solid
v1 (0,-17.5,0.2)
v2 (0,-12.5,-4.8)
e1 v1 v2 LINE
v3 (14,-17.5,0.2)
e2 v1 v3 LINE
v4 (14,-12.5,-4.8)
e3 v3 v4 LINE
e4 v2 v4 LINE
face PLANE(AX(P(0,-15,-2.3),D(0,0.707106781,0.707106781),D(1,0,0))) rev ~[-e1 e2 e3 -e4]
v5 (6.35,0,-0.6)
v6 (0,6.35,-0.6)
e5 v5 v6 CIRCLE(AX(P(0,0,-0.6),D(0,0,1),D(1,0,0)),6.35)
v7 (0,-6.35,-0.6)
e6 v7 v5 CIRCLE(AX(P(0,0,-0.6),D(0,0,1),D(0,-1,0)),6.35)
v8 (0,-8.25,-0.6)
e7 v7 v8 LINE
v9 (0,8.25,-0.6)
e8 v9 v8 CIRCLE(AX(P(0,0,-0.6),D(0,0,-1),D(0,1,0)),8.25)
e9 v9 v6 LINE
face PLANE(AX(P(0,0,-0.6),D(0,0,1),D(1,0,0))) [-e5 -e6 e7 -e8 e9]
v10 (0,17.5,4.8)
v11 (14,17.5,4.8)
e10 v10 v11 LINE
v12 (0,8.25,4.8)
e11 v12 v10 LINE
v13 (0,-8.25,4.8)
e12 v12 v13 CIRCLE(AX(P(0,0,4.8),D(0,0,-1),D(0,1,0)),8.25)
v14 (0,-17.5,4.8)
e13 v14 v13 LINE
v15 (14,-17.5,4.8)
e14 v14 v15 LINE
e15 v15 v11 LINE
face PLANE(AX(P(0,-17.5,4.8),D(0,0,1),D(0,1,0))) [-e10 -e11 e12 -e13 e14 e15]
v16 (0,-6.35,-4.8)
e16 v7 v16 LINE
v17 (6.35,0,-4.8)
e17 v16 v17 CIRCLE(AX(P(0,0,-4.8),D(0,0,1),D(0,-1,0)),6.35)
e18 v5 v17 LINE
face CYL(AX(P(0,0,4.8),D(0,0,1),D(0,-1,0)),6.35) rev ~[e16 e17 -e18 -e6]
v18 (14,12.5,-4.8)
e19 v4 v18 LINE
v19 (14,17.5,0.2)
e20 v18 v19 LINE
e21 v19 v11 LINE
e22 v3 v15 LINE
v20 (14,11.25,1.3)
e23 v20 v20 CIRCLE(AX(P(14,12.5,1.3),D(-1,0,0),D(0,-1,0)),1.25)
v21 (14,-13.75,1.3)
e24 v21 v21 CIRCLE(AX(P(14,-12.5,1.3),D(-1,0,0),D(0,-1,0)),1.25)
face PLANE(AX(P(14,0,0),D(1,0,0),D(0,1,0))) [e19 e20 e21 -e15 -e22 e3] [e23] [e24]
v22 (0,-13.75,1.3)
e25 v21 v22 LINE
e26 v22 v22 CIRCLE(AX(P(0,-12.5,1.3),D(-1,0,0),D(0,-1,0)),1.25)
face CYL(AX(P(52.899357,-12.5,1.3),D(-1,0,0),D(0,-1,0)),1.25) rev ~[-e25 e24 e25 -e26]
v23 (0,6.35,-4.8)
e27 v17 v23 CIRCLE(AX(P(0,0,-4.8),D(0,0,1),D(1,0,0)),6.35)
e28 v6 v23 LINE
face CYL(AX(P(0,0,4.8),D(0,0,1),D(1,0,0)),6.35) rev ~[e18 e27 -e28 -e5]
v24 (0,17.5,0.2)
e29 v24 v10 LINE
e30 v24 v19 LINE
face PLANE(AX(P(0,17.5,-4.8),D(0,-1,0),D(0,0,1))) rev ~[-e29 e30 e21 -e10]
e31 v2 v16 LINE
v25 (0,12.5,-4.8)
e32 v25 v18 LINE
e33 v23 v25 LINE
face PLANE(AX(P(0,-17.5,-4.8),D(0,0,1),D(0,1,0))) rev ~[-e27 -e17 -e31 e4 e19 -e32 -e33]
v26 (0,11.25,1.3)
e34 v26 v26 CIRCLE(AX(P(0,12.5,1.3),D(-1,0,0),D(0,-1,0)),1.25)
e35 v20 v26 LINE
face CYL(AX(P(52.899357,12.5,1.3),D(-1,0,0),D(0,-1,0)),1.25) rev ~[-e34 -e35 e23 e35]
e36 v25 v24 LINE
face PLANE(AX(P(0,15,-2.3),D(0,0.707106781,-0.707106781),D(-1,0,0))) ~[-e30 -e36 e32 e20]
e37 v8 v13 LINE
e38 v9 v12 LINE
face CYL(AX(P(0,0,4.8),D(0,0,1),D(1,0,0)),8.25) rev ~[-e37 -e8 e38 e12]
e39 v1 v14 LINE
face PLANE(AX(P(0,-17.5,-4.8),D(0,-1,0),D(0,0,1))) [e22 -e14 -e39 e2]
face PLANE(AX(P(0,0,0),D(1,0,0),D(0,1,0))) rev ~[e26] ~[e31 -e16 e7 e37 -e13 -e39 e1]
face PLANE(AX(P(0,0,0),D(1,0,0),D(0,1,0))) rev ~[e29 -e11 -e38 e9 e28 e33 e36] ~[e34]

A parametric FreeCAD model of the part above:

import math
import FreeCAD as App
import Part
import Sketcher

V = App.Vector
Q = App.Units.Quantity


def edges_at(feature, points):
    """Names of the edges that pass closest to the given points."""
    edges = feature.Shape.Edges
    near = lambda p: min(range(len(edges)), key=lambda i: edges[i].distToShape(Part.Vertex(*p))[0])
    return sorted({f"Edge{near(p) + 1}" for p in points})


def add_polygon(sketch, points):
    """Adds a closed chain of lines whose ends are joined by coincident constraints."""
    first, n = sketch.GeometryCount, len(points)
    for a, b in zip(points, points[1:] + points[:1]):
        sketch.addGeometry(Part.LineSegment(App.Vector(*a, 0), App.Vector(*b, 0)), False)
    for i in range(n):
        sketch.addConstraint(Sketcher.Constraint("Coincident", first + i, 2, first + (i + 1) % n, 1))

doc = App.newDocument("Part")
params = doc.addObject("Spreadsheet::Sheet", "Params")
for row, (alias, value) in enumerate([
    ("sketch1_width", "35 mm"),
    ("sketch1_height", "9.6 mm"),
    ("pad1_length", "14 mm"),
    ("sketch2_diameter", "16.5 mm"),
    ("pocket1_length", "5.4 mm"),
    ("sketch3_radius", "6.35 mm"),
    ("pocket2_length", "25 mm"),
    ("chamfer_size", "5 mm"),
    ("sketch4_diameter", "2.5 mm"),
    ("hole_diameter", "2.5 mm"),
], start=1):
    params.set(f"A{row}", alias)
    params.set(f"B{row}", "=" + value)
    params.setAlias(f"B{row}", alias)

body = doc.addObject("PartDesign::Body", "Body")

# Sketch on YZ plane
sketch1 = body.newObject("Sketcher::SketchObject", "Sketch")
sketch1.AttachmentSupport = (doc.getObject("YZ_Plane"), [""])
sketch1.MapMode = "FlatFace"
add_polygon(sketch1, [(-18, 5), (-18, -5), (18, -5), (18, 5)])  # lines 0-3
sketch1.addConstraint(Sketcher.Constraint("Vertical", 0))
sketch1.addConstraint(Sketcher.Constraint("Horizontal", 1))
sketch1.addConstraint(Sketcher.Constraint("Vertical", 2))
sketch1.addConstraint(Sketcher.Constraint("Horizontal", 3))
sketch1.addConstraint(Sketcher.Constraint("Symmetric", 0, 2, 2, 2, -1, 1))
sketch1.addConstraint(Sketcher.Constraint("DistanceX", 1, 1, 1, 2, Q("35 mm")))
sketch1.addConstraint(Sketcher.Constraint("DistanceY", 0, 2, 0, 1, Q("9.6 mm")))
sketch1.setExpression("Constraints[9]", "Params.sketch1_width")
sketch1.setExpression("Constraints[10]", "Params.sketch1_height")
pad1 = body.newObject("PartDesign::Pad", "Pad")
pad1.Profile = sketch1
pad1.setExpression("Length", "Params.pad1_length")

# Sketch on XY plane
sketch2 = body.newObject("Sketcher::SketchObject", "Sketch001")
sketch2.AttachmentSupport = (doc.getObject("XY_Plane"), [""])
sketch2.MapMode = "FlatFace"
sketch2.AttachmentOffset = App.Placement(V(0, 0, 4.8), App.Rotation())
sketch2.addGeometry(Part.Circle(V(0, 0, 0), V(0, 0, 1), 8), False)
sketch2.addConstraint(Sketcher.Constraint("Coincident", 0, 3, -1, 1))
sketch2.addConstraint(Sketcher.Constraint("Diameter", 0, Q("16.5 mm")))
sketch2.setExpression("Constraints[1]", "Params.sketch2_diameter")
pocket1 = body.newObject("PartDesign::Pocket", "Pocket")
pocket1.Profile = sketch2
pocket1.setExpression("Length", "Params.pocket1_length")

# Sketch on XY plane
sketch3 = body.newObject("Sketcher::SketchObject", "Sketch002")
sketch3.AttachmentSupport = (doc.getObject("XY_Plane"), [""])
sketch3.MapMode = "FlatFace"
sketch3.AttachmentOffset = App.Placement(V(0, 0, 4.8), App.Rotation())
sketch3.addGeometry(Part.ArcOfCircle(Part.Circle(V(0, 0, 0), V(0, 0, 1), 6), math.radians(-90), math.radians(0)), False)
sketch3.addGeometry(Part.ArcOfCircle(Part.Circle(V(0, 0, 0), V(0, 0, 1), 6), math.radians(0), math.radians(90)), False)
sketch3.addGeometry(Part.LineSegment(V(0, 6, 0), V(0, -6, 0)), False)
sketch3.addConstraint(Sketcher.Constraint("Tangent", 0, 2, 1, 1))
sketch3.addConstraint(Sketcher.Constraint("Coincident", 1, 2, 2, 1))
sketch3.addConstraint(Sketcher.Constraint("Coincident", 2, 2, 0, 1))
sketch3.addConstraint(Sketcher.Constraint("Vertical", 2))
sketch3.addConstraint(Sketcher.Constraint("Coincident", 0, 3, -1, 1))
sketch3.addConstraint(Sketcher.Constraint("Equal", 0, 1))
sketch3.addConstraint(Sketcher.Constraint("PointOnObject", 0, 2, -1))
sketch3.addConstraint(Sketcher.Constraint("PointOnObject", 1, 2, -2))
sketch3.addConstraint(Sketcher.Constraint("Radius", 0, Q("6.35 mm")))
sketch3.setExpression("Constraints[8]", "Params.sketch3_radius")
pocket2 = body.newObject("PartDesign::Pocket", "Pocket001")
pocket2.Profile = sketch3
pocket2.setExpression("Length", "Params.pocket2_length")
doc.recompute()

chamfer = body.newObject("PartDesign::Chamfer", "Chamfer")
chamfer.Base = (pocket2, edges_at(pocket2, [(7, 17.5, -4.8), (7, -17.5, -4.8)]))
chamfer.setExpression("Size", "Params.chamfer_size")

# Sketch on YZ plane
sketch4 = body.newObject("Sketcher::SketchObject", "Sketch003")
sketch4.AttachmentSupport = (doc.getObject("YZ_Plane"), [""])
sketch4.MapMode = "FlatFace"
sketch4.AttachmentOffset = App.Placement(V(0, 0, 14), App.Rotation())
sketch4.addGeometry(Part.Circle(V(-12.5, 1.3, 0), V(0, 0, 1), 1.2), False)
sketch4.addGeometry(Part.Circle(V(12.5, 1.3, 0), V(0, 0, 1), 1.2), False)
sketch4.addConstraint(Sketcher.Constraint("Equal", 0, 1))
sketch4.addConstraint(Sketcher.Constraint("Symmetric", 0, 3, 1, 3, -2))
sketch4.addConstraint(Sketcher.Constraint("Diameter", 0, Q("2.5 mm")))
sketch4.addConstraint(Sketcher.Constraint("DistanceX", 0, 3, 1, 3, Q("25 mm")))
sketch4.addConstraint(Sketcher.Constraint("DistanceY", -1, 1, 0, 3, Q("1.3 mm")))
sketch4.setExpression("Constraints[2]", "Params.sketch4_diameter")
doc.recompute()
hole = body.newObject("PartDesign::Hole", "Hole")
hole.Profile = sketch4
hole.ThreadType = "None"
hole.setExpression("Diameter", "Params.hole_diameter")
hole.DepthType = "ThroughAll"

doc.recompute()
